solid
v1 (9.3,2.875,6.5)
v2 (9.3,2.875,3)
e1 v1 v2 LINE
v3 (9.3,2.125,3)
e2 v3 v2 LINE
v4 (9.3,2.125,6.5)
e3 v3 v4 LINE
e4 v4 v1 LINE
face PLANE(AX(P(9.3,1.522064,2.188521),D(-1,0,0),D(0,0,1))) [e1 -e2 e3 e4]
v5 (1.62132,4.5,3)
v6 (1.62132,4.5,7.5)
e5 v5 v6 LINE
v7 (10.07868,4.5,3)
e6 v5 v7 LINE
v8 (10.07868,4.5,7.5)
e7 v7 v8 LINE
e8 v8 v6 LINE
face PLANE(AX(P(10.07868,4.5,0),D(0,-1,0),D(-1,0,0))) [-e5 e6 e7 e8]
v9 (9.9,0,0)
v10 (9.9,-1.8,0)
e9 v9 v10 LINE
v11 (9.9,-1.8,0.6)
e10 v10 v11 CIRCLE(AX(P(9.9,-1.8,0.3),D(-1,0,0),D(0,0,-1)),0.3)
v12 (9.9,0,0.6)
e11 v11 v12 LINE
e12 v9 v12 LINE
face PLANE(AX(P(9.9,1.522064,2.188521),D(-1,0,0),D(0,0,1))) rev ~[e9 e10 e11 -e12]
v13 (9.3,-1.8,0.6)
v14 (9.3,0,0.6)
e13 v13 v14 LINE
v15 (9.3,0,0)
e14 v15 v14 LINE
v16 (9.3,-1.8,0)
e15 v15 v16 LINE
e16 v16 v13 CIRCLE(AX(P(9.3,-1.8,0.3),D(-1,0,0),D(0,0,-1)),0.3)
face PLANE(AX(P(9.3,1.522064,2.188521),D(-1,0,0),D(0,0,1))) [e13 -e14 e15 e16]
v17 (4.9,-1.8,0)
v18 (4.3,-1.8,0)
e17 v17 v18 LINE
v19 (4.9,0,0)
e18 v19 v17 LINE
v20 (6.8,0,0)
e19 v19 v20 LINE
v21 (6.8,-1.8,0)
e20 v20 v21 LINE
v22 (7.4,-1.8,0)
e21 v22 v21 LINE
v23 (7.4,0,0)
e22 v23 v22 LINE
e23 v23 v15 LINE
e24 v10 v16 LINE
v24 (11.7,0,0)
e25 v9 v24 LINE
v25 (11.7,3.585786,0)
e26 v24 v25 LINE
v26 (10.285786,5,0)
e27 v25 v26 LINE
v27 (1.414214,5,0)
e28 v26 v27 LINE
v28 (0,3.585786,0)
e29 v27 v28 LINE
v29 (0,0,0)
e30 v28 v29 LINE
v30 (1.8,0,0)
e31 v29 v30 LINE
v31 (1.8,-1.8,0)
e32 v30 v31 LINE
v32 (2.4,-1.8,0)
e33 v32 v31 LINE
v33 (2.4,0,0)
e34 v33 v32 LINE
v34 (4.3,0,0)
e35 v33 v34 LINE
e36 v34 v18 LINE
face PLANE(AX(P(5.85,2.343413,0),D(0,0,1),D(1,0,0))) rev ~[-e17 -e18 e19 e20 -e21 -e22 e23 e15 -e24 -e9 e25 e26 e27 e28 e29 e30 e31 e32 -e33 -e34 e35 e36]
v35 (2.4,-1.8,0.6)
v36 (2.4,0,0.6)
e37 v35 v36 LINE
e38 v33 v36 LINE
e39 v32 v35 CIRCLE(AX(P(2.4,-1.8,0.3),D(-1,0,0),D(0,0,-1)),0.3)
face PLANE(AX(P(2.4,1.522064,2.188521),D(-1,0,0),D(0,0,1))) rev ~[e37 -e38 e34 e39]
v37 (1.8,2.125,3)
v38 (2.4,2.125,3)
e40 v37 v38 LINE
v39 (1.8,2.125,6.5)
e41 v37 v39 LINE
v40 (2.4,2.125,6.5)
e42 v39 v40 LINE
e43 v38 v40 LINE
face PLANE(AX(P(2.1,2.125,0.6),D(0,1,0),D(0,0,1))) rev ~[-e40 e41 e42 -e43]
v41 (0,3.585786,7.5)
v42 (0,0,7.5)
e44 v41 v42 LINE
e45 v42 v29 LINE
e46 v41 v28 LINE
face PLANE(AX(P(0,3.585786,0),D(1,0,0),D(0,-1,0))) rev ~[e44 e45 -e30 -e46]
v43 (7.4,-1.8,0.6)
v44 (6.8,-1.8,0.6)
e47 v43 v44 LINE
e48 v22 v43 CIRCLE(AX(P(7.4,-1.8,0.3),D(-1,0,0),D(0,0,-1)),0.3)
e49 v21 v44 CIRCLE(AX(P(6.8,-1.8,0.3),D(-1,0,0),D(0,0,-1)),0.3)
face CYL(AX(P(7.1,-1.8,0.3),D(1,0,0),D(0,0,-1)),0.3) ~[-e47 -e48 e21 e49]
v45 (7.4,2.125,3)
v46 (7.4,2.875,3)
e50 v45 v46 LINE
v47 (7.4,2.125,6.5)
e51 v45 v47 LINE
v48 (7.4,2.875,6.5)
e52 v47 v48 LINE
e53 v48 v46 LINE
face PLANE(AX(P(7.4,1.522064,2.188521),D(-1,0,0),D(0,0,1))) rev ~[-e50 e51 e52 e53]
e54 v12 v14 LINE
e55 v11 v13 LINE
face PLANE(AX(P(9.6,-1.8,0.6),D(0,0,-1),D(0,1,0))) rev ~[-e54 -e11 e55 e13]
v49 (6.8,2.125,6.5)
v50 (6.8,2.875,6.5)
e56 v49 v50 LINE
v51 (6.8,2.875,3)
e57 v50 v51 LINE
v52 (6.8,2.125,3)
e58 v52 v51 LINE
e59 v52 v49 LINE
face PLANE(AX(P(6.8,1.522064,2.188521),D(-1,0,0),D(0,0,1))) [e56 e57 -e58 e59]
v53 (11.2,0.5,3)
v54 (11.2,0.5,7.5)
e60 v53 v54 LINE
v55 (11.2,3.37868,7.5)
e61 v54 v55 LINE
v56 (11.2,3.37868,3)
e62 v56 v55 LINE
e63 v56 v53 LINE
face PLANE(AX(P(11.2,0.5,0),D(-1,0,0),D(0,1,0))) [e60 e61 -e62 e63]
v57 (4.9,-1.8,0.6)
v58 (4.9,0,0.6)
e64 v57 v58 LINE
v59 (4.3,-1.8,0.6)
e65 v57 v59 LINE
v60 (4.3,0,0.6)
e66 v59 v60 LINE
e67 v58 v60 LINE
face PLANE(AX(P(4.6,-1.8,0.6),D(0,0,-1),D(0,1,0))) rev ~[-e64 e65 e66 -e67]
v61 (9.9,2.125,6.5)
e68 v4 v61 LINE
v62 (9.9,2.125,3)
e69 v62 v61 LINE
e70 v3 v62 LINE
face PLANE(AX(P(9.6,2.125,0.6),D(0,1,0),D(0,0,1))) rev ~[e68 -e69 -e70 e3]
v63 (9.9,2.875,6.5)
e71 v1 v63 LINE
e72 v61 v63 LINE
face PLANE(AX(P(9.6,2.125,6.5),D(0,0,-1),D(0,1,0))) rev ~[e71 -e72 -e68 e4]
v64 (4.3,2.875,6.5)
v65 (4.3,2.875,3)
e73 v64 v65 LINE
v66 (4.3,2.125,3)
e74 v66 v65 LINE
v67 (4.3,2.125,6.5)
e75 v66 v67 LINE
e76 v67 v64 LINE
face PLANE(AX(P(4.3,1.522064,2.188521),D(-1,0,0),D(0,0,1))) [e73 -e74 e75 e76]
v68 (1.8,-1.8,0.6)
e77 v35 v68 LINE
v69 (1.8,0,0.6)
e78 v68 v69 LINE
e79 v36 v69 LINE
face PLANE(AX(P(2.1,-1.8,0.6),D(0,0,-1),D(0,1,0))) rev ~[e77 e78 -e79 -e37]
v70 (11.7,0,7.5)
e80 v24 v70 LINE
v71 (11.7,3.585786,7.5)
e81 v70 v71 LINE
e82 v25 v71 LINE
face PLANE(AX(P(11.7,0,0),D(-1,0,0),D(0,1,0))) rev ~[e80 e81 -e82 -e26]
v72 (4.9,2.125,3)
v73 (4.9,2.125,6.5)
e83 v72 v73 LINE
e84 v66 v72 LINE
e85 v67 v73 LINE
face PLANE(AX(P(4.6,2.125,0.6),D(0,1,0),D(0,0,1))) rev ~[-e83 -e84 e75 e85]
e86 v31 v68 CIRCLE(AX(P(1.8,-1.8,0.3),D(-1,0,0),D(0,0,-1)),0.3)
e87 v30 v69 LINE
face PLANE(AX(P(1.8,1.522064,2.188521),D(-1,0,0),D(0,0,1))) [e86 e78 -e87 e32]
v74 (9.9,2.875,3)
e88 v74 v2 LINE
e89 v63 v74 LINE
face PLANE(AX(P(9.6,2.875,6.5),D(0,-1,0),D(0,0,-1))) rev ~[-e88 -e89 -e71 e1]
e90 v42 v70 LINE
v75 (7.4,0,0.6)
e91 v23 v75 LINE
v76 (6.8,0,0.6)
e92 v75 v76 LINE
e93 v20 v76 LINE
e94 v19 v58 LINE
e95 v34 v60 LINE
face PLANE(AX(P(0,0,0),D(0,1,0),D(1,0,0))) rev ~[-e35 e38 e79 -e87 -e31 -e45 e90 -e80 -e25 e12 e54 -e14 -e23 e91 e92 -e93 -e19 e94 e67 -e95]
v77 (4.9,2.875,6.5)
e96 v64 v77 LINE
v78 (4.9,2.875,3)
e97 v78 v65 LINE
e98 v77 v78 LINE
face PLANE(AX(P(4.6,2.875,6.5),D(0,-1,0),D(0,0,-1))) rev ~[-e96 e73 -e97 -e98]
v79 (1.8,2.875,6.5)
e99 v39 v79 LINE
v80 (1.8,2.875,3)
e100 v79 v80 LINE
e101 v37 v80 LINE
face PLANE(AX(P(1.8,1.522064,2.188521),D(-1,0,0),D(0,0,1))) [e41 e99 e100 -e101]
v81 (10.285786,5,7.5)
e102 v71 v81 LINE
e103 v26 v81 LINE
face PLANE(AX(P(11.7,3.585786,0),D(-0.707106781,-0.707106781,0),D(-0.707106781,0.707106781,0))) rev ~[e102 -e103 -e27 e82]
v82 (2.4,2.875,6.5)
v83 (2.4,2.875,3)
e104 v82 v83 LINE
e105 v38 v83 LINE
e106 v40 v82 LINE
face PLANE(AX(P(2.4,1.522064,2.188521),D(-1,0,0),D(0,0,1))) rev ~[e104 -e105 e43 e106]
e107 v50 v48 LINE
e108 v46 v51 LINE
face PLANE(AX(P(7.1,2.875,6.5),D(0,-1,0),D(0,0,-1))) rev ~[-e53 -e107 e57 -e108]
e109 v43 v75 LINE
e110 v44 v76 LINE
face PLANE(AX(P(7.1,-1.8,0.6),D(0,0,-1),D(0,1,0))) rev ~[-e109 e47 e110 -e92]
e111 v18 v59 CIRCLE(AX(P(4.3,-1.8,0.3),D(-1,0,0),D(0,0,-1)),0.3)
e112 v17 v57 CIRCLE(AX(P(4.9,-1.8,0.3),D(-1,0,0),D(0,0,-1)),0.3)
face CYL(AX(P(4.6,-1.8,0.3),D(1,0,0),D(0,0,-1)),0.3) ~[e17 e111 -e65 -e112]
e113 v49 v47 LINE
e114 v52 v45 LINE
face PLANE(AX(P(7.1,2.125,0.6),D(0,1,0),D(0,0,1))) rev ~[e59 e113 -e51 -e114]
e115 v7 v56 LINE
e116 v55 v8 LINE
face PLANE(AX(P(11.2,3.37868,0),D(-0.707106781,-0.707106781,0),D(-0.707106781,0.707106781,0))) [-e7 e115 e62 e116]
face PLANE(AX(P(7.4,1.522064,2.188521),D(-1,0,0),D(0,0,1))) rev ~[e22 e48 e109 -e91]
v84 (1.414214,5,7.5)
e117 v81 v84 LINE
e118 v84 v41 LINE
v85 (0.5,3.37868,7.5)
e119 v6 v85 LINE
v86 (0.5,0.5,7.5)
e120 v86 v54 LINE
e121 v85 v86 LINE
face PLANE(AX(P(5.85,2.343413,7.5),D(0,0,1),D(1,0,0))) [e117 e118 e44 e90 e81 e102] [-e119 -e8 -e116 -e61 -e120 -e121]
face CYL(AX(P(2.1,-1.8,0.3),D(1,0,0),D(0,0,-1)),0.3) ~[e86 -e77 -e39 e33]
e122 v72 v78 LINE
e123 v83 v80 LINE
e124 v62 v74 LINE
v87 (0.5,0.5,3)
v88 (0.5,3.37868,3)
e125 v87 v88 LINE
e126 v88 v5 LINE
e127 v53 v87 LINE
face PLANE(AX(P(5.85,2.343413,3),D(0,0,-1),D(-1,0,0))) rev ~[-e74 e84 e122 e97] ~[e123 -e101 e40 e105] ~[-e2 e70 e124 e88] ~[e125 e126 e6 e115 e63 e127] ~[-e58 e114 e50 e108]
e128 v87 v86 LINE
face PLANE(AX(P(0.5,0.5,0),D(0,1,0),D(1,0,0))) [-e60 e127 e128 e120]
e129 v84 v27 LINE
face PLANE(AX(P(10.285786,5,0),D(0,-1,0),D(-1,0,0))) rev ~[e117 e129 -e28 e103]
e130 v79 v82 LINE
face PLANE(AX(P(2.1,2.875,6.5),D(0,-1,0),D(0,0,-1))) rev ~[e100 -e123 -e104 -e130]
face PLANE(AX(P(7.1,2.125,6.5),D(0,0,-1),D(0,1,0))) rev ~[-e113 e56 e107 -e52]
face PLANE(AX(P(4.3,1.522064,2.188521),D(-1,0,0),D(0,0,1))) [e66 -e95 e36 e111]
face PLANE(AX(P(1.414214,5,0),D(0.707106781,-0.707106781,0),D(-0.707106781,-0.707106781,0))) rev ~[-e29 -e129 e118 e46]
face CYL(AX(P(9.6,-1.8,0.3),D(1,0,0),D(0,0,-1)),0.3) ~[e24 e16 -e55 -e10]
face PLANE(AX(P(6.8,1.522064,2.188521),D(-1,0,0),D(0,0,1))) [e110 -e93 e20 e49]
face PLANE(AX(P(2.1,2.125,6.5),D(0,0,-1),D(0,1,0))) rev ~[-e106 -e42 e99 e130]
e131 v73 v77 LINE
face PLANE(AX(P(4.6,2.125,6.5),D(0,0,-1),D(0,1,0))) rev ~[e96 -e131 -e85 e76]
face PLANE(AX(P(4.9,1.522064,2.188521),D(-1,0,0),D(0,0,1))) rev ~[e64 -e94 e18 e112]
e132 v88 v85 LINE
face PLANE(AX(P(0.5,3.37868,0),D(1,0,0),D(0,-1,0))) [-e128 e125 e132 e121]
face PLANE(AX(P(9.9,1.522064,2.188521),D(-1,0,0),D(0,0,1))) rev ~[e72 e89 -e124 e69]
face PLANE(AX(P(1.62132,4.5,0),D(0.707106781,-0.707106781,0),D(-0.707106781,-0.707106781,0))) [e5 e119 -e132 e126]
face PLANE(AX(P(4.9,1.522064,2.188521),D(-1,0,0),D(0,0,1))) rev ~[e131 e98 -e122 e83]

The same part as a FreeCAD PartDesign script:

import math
import FreeCAD as App
import Part
import Sketcher
from FreeCAD import Vector


def add_polygon(sketch, points):
    """Adds a closed chain of lines whose ends are joined by coincident constraints."""
    first, n = sketch.GeometryCount, len(points)
    for a, b in zip(points, points[1:] + points[:1]):
        sketch.addGeometry(Part.LineSegment(App.Vector(*a, 0), App.Vector(*b, 0)), False)
    for i in range(n):
        sketch.addConstraint(Sketcher.Constraint("Coincident", first + i, 2, first + (i + 1) % n, 1))

doc = App.newDocument("Part")
body = doc.addObject("PartDesign::Body", "Body")

# Sketch on XY plane
sketch1 = body.newObject("Sketcher::SketchObject", "Sketch")
sketch1.AttachmentSupport = (doc.getObject("XY_Plane"), [""])
sketch1.MapMode = "FlatFace"
add_polygon(sketch1, [(0, 0), (11.7, 0), (11.7, 3.6), (10.3, 5), (1.4, 5), (0, 3.6)])  # lines 0-5
add_polygon(sketch1, [(11.2, 0.5), (0.5, 0.5), (0.5, 3.4), (1.6, 4.5), (10.1, 4.5), (11.2, 3.4)])  # lines 6-11
sketch1.addConstraint([
    Sketcher.Constraint("Horizontal", 0),
    Sketcher.Constraint("Vertical", 1),
    Sketcher.Constraint("Horizontal", 3),
    Sketcher.Constraint("Vertical", 5),
    Sketcher.Constraint("Horizontal", 6),
    Sketcher.Constraint("Vertical", 7),
    Sketcher.Constraint("Horizontal", 9),
    Sketcher.Constraint("Vertical", 11),
    Sketcher.Constraint("Coincident", 5, 2, -1, 1),
    Sketcher.Constraint("Perpendicular", 2, 4),
    Sketcher.Constraint("Parallel", 4, 8),
    Sketcher.Constraint("Perpendicular", 8, 10),
    Sketcher.Constraint("Horizontal", 1, 2, 4, 2),
    Sketcher.Constraint("Horizontal", 7, 2, 10, 2),
    Sketcher.Constraint("Equal", 2, 4),
    Sketcher.Constraint("Distance", 2, 2.0),
    Sketcher.Constraint("DistanceX", 0, 1, 0, 2, 11.7),
    Sketcher.Constraint("DistanceX", 6, 2, 6, 1, 10.7),
    Sketcher.Constraint("DistanceY", -1, 1, 2, 2, 5.0),
    Sketcher.Constraint("DistanceY", 6, 2, 8, 2, 4.0),
    Sketcher.Constraint("DistanceX", -1, 1, 6, 2, 0.5),
    Sketcher.Constraint("DistanceY", -1, 1, 6, 2, 0.5),
    Sketcher.Constraint("DistanceX", 9, 1, 9, 2, 8.457359),
])
pad1 = body.newObject("PartDesign::Pad", "Pad")
pad1.Profile = sketch1
pad1.Length = 7.5

# Sketch on XY plane
sketch2 = body.newObject("Sketcher::SketchObject", "Sketch001")
sketch2.AttachmentSupport = (doc.getObject("XY_Plane"), [""])
sketch2.MapMode = "FlatFace"
add_polygon(sketch2, [(0, 0), (0, 3.6), (1.4, 5), (10.3, 5), (11.7, 3.6), (11.7, 0)])  # lines 0-5
sketch2.addConstraint([
    Sketcher.Constraint("Vertical", 0),
    Sketcher.Constraint("Horizontal", 2),
    Sketcher.Constraint("Vertical", 4),
    Sketcher.Constraint("Horizontal", 5),
    Sketcher.Constraint("Coincident", 5, 2, -1, 1),
    Sketcher.Constraint("Perpendicular", 1, 3),
    Sketcher.Constraint("Horizontal", 0, 2, 3, 2),
    Sketcher.Constraint("Equal", 1, 3),
    Sketcher.Constraint("Distance", 1, 2.0),
    Sketcher.Constraint("DistanceX", 5, 2, 5, 1, 11.7),
    Sketcher.Constraint("DistanceY", -1, 1, 1, 2, 5.0),
])
pad2 = body.newObject("PartDesign::Pad", "Pad001")
pad2.Profile = sketch2
pad2.Length = 3

# Sketch on YZ plane
sketch3 = body.newObject("Sketcher::SketchObject", "Sketch002")
sketch3.AttachmentSupport = (doc.getObject("YZ_Plane"), [""])
sketch3.MapMode = "FlatFace"
sketch3.AttachmentOffset = App.Placement(Vector(0, 0, 9.6), App.Rotation())
sketch3.addGeometry([
    Part.LineSegment(Vector(2.88, 0, 0), Vector(2.88, 6.5, 0)),  # 0
    Part.LineSegment(Vector(2.88, 6.5, 0), Vector(2.12, 6.5, 0)),  # 1
    Part.LineSegment(Vector(2.12, 6.5, 0), Vector(2.12, 0.6, 0)),  # 2
    Part.LineSegment(Vector(2.12, 0.6, 0), Vector(-1.8, 0.6, 0)),  # 3
    Part.ArcOfCircle(Part.Circle(Vector(-1.8, 0.3, 0), Vector(0, 0, 1), 0.3), math.radians(90), math.radians(270)),  # 4
    Part.LineSegment(Vector(-1.8, 0, 0), Vector(2.88, 0, 0)),  # 5
], False)
sketch3.addConstraint([
    Sketcher.Constraint("Coincident", 0, 2, 1, 1),
    Sketcher.Constraint("Coincident", 1, 2, 2, 1),
    Sketcher.Constraint("Coincident", 2, 2, 3, 1),
    Sketcher.Constraint("Tangent", 3, 2, 4, 1),
    Sketcher.Constraint("Tangent", 4, 2, 5, 1),
    Sketcher.Constraint("Coincident", 5, 2, 0, 1),
    Sketcher.Constraint("Vertical", 0),
    Sketcher.Constraint("Horizontal", 1),
    Sketcher.Constraint("Vertical", 2),
    Sketcher.Constraint("Horizontal", 3),
    Sketcher.Constraint("Horizontal", 5),
    Sketcher.Constraint("PointOnObject", 4, 2, -1),
    Sketcher.Constraint("Radius", 4, 0.3),
    Sketcher.Constraint("DistanceY", 0, 1, 0, 2, 6.5),
    Sketcher.Constraint("DistanceX", 1, 2, 1, 1, 0.75),
    Sketcher.Constraint("DistanceX", 4, 3, -1, 1, 1.8),
    Sketcher.Constraint("DistanceX", 3, 2, 3, 1, 3.925),
])
pad3 = body.newObject("PartDesign::Pad", "Pad002")
pad3.Profile = sketch3
pad3.Length = 0.6
pad3.Midplane = True
doc.recompute()

linearpattern = body.newObject("PartDesign::LinearPattern", "LinearPattern")
linearpattern.Originals = [pad3]
linearpattern.Direction = (doc.getObject("X_Axis"), [""])
linearpattern.Mode = "offset"
linearpattern.Offset = 2.5
linearpattern.Occurrences = 4
linearpattern.Reversed = True
body.Tip = linearpattern

doc.recompute()
